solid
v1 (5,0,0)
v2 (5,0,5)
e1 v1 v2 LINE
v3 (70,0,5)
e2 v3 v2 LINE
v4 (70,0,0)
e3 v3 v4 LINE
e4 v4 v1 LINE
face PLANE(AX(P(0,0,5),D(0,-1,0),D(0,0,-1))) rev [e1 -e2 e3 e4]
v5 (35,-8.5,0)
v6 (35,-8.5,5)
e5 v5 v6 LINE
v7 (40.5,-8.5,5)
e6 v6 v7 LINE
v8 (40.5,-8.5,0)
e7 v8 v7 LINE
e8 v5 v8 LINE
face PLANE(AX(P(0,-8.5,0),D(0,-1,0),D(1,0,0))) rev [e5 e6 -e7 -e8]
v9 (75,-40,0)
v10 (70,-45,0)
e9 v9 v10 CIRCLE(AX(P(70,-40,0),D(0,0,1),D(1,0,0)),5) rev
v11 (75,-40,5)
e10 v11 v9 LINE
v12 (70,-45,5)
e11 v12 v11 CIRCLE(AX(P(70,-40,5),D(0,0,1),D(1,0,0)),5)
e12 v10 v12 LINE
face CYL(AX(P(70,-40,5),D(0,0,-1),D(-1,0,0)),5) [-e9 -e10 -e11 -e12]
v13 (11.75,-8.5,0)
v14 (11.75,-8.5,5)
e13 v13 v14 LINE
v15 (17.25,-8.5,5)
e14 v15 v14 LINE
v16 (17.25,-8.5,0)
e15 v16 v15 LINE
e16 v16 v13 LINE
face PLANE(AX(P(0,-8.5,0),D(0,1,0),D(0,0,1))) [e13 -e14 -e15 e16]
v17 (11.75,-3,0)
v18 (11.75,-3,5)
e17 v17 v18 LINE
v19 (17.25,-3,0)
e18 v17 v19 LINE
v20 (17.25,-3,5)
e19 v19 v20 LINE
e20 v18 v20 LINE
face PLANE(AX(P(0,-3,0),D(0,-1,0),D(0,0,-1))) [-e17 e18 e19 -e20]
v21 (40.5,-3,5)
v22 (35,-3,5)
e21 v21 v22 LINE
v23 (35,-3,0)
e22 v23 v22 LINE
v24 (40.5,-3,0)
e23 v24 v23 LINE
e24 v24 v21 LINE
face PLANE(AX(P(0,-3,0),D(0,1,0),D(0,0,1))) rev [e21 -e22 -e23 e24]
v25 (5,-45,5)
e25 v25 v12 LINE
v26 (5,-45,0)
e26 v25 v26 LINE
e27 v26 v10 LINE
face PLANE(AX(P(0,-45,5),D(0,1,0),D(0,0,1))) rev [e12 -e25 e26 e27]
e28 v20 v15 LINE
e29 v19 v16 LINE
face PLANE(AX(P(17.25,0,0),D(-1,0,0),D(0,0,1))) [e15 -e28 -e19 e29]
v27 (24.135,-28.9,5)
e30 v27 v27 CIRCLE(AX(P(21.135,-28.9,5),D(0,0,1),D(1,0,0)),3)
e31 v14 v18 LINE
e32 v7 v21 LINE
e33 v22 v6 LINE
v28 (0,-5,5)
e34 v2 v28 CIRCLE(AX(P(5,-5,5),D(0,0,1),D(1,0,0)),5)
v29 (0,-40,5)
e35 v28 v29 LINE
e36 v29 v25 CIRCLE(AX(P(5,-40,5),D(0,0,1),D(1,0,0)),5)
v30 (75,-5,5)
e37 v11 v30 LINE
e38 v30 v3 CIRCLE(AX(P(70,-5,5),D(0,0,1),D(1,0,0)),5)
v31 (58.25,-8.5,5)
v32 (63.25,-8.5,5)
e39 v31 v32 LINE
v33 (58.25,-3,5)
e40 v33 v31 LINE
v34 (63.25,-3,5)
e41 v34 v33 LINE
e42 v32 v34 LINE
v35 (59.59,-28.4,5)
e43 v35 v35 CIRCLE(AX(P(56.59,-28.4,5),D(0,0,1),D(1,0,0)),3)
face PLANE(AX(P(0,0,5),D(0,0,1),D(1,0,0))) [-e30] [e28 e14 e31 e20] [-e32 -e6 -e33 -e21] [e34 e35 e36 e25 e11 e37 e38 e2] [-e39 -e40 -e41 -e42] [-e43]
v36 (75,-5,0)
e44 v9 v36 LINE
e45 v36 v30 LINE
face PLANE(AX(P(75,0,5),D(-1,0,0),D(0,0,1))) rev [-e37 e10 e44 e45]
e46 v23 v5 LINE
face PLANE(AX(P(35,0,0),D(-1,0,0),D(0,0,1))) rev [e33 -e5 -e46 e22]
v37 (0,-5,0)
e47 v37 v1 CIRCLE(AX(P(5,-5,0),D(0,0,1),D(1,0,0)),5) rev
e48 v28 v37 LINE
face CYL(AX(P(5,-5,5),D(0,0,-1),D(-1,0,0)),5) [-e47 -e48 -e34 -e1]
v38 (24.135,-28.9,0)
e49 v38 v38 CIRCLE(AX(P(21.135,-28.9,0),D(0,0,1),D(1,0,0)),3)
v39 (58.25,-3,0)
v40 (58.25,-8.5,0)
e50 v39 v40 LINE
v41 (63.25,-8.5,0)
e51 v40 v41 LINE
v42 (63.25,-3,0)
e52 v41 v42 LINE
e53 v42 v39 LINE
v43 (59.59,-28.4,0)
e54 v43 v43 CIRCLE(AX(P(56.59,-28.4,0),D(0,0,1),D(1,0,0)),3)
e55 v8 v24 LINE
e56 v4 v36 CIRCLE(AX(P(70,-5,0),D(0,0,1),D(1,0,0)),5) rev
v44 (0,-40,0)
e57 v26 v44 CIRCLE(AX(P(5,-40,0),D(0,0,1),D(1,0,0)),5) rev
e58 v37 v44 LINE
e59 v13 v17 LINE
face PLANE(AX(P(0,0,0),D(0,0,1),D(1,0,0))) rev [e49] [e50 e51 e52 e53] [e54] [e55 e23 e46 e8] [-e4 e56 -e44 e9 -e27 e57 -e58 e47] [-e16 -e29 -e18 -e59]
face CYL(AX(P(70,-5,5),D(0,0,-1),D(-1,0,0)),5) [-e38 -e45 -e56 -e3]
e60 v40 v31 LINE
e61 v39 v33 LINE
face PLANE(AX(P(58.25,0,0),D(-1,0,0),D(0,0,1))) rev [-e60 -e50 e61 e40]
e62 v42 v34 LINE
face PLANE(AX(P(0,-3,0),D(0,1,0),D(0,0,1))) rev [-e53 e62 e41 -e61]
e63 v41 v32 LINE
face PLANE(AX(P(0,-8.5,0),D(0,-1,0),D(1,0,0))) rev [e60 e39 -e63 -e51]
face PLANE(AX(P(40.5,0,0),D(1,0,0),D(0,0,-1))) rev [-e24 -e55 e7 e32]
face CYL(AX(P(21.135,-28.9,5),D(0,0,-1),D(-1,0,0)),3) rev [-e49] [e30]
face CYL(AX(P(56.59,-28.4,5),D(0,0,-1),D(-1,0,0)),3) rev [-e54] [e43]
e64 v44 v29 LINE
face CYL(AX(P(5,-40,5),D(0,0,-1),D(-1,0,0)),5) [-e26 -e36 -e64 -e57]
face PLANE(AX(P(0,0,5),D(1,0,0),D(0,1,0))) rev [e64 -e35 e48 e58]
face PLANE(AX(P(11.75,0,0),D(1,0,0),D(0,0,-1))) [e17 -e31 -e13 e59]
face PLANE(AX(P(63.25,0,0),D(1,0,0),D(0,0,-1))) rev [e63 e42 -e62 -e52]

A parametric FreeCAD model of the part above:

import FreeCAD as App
import Part
import Sketcher
from FreeCAD import Vector


def edges_at(feature, points):
    """Names of the edges that pass closest to the given points."""
    edges = feature.Shape.Edges
    near = lambda p: min(range(len(edges)), key=lambda i: edges[i].distToShape(Part.Vertex(*p))[0])
    return sorted({f"Edge{near(p) + 1}" for p in points})


def add_polygon(sketch, points):
    """Adds a closed chain of lines whose ends are joined by coincident constraints."""
    first, n = sketch.GeometryCount, len(points)
    for a, b in zip(points, points[1:] + points[:1]):
        sketch.addGeometry(Part.LineSegment(App.Vector(*a, 0), App.Vector(*b, 0)), False)
    for i in range(n):
        sketch.addConstraint(Sketcher.Constraint("Coincident", first + i, 2, first + (i + 1) % n, 1))

doc = App.newDocument("Part")
params = doc.addObject("Spreadsheet::Sheet", "Params")
for row, (alias, value) in enumerate([
    ("sketch1_diameter", "6 mm"),
    ("sketch1_width", "75 mm"),
    ("sketch1_height", "45 mm"),
    ("pad1_length", "5 mm"),
    ("sketch2_width", "5 mm"),
    ("sketch2_width2", "5.5 mm"),
    ("pocket1_length", "5 mm"),
    ("fillet_radius", "5 mm"),
], start=1):
    params.set(f"A{row}", alias)
    params.set(f"B{row}", "=" + value)
    params.setAlias(f"B{row}", alias)

body = doc.addObject("PartDesign::Body", "Body")

# Sketch on XY plane
sketch1 = doc.addObject("Sketcher::SketchObject", "Sketch")
body.addObject(sketch1)
sketch1.AttachmentSupport = (doc.XY_Plane, [""])
sketch1.MapMode = "FlatFace"
add_polygon(sketch1, [(0, 0), (0, -45), (75, -45), (75, 0)])  # lines 0-3
sketch1.addGeometry(Part.Circle(Vector(21.135, -28.9, 0), Vector(0, 0, 1), 3), False)  # 4
sketch1.addGeometry(Part.Circle(Vector(56.59, -28.4, 0), Vector(0, 0, 1), 3), False)  # 5
sketch1.addConstraint(Sketcher.Constraint("Vertical", 0))
sketch1.addConstraint(Sketcher.Constraint("Horizontal", 1))
sketch1.addConstraint(Sketcher.Constraint("Vertical", 2))
sketch1.addConstraint(Sketcher.Constraint("Horizontal", 3))
sketch1.addConstraint(Sketcher.Constraint("Coincident", 3, 2, -1, 1))
sketch1.addConstraint(Sketcher.Constraint("Equal", 4, 5))
sketch1.addConstraint(Sketcher.Constraint("Diameter", 4, 6.0))
sketch1.addConstraint(Sketcher.Constraint("DistanceX", 1, 1, 1, 2, 75.0))
sketch1.addConstraint(Sketcher.Constraint("DistanceY", 0, 2, 0, 1, 45.0))
sketch1.addConstraint(Sketcher.Constraint("DistanceY", 4, 3, -1, 1, 28.9))
sketch1.addConstraint(Sketcher.Constraint("DistanceY", 5, 3, -1, 1, 28.4))
sketch1.addConstraint(Sketcher.Constraint("DistanceX", -1, 1, 5, 3, 56.59))
sketch1.addConstraint(Sketcher.Constraint("DistanceX", -1, 1, 4, 3, 21.135))
sketch1.setExpression("Constraints[10]", "Params.sketch1_diameter")
sketch1.setExpression("Constraints[11]", "Params.sketch1_width")
sketch1.setExpression("Constraints[12]", "Params.sketch1_height")
pad1 = doc.addObject("PartDesign::Pad", "Pad")
body.addObject(pad1)
pad1.Profile = sketch1
pad1.setExpression("Length", "Params.pad1_length")

# Sketch on XY plane
sketch2 = doc.addObject("Sketcher::SketchObject", "Sketch001")
body.addObject(sketch2)
sketch2.AttachmentSupport = (doc.XY_Plane, [""])
sketch2.MapMode = "FlatFace"
sketch2.AttachmentOffset = App.Placement(Vector(0, 0, 5), App.Rotation())
add_polygon(sketch2, [(40.5, -8.5), (40.5, -3), (35, -3), (35, -8.5)])  # lines 0-3
add_polygon(sketch2, [(58.25, -3), (58.25, -8.5), (63.25, -8.5), (63.25, -3)])  # lines 4-7
add_polygon(sketch2, [(11.75, -3), (11.75, -8.5), (17.25, -8.5), (17.25, -3)])  # lines 8-11
sketch2.addConstraint(Sketcher.Constraint("Vertical", 0))
sketch2.addConstraint(Sketcher.Constraint("Horizontal", 1))
sketch2.addConstraint(Sketcher.Constraint("Vertical", 2))
sketch2.addConstraint(Sketcher.Constraint("Horizontal", 3))
sketch2.addConstraint(Sketcher.Constraint("Vertical", 4))
sketch2.addConstraint(Sketcher.Constraint("Horizontal", 5))
sketch2.addConstraint(Sketcher.Constraint("Vertical", 6))
sketch2.addConstraint(Sketcher.Constraint("Horizontal", 7))
sketch2.addConstraint(Sketcher.Constraint("Vertical", 8))
sketch2.addConstraint(Sketcher.Constraint("Horizontal", 9))
sketch2.addConstraint(Sketcher.Constraint("Vertical", 10))
sketch2.addConstraint(Sketcher.Constraint("Horizontal", 11))
sketch2.addConstraint(Sketcher.Constraint("Horizontal", 3, 2, 4, 2))
sketch2.addConstraint(Sketcher.Constraint("Horizontal", 1, 2, 6, 2))
sketch2.addConstraint(Sketcher.Constraint("Horizontal", 5, 2, 8, 2))
sketch2.addConstraint(Sketcher.Constraint("Horizontal", 7, 2, 10, 2))
sketch2.addConstraint(Sketcher.Constraint("Equal", 3, 9))
sketch2.addConstraint(Sketcher.Constraint("Equal", 11, 0))
sketch2.addConstraint(Sketcher.Constraint("DistanceX", 5, 1, 5, 2, 5.0))
sketch2.addConstraint(Sketcher.Constraint("DistanceX", 1, 2, 1, 1, 5.5))
sketch2.addConstraint(Sketcher.Constraint("DistanceY", 0, 2, -1, 1, 3.0))
sketch2.addConstraint(Sketcher.Constraint("DistanceX", -1, 1, 1, 2, 35.0))
sketch2.addConstraint(Sketcher.Constraint("DistanceX", 8, 2, 4, 2, 46.5))
sketch2.addConstraint(Sketcher.Constraint("DistanceX", -1, 1, 4, 2, 58.25))
sketch2.setExpression("Constraints[30]", "Params.sketch2_width")
sketch2.setExpression("Constraints[31]", "Params.sketch2_width2")
pocket1 = doc.addObject("PartDesign::Pocket", "Pocket")
body.addObject(pocket1)
pocket1.Profile = sketch2
pocket1.setExpression("Length", "Params.pocket1_length")
doc.recompute()

fillet = doc.addObject("PartDesign::Fillet", "Fillet")
body.addObject(fillet)
fillet.Base = (pocket1, edges_at(pocket1, [
    (0, 0, 2.5),
    (75, 0, 2.5),
    (75, -45, 2.5),
    (0, -45, 2.5),
]))
fillet.setExpression("Radius", "Params.fillet_radius")

doc.recompute()
